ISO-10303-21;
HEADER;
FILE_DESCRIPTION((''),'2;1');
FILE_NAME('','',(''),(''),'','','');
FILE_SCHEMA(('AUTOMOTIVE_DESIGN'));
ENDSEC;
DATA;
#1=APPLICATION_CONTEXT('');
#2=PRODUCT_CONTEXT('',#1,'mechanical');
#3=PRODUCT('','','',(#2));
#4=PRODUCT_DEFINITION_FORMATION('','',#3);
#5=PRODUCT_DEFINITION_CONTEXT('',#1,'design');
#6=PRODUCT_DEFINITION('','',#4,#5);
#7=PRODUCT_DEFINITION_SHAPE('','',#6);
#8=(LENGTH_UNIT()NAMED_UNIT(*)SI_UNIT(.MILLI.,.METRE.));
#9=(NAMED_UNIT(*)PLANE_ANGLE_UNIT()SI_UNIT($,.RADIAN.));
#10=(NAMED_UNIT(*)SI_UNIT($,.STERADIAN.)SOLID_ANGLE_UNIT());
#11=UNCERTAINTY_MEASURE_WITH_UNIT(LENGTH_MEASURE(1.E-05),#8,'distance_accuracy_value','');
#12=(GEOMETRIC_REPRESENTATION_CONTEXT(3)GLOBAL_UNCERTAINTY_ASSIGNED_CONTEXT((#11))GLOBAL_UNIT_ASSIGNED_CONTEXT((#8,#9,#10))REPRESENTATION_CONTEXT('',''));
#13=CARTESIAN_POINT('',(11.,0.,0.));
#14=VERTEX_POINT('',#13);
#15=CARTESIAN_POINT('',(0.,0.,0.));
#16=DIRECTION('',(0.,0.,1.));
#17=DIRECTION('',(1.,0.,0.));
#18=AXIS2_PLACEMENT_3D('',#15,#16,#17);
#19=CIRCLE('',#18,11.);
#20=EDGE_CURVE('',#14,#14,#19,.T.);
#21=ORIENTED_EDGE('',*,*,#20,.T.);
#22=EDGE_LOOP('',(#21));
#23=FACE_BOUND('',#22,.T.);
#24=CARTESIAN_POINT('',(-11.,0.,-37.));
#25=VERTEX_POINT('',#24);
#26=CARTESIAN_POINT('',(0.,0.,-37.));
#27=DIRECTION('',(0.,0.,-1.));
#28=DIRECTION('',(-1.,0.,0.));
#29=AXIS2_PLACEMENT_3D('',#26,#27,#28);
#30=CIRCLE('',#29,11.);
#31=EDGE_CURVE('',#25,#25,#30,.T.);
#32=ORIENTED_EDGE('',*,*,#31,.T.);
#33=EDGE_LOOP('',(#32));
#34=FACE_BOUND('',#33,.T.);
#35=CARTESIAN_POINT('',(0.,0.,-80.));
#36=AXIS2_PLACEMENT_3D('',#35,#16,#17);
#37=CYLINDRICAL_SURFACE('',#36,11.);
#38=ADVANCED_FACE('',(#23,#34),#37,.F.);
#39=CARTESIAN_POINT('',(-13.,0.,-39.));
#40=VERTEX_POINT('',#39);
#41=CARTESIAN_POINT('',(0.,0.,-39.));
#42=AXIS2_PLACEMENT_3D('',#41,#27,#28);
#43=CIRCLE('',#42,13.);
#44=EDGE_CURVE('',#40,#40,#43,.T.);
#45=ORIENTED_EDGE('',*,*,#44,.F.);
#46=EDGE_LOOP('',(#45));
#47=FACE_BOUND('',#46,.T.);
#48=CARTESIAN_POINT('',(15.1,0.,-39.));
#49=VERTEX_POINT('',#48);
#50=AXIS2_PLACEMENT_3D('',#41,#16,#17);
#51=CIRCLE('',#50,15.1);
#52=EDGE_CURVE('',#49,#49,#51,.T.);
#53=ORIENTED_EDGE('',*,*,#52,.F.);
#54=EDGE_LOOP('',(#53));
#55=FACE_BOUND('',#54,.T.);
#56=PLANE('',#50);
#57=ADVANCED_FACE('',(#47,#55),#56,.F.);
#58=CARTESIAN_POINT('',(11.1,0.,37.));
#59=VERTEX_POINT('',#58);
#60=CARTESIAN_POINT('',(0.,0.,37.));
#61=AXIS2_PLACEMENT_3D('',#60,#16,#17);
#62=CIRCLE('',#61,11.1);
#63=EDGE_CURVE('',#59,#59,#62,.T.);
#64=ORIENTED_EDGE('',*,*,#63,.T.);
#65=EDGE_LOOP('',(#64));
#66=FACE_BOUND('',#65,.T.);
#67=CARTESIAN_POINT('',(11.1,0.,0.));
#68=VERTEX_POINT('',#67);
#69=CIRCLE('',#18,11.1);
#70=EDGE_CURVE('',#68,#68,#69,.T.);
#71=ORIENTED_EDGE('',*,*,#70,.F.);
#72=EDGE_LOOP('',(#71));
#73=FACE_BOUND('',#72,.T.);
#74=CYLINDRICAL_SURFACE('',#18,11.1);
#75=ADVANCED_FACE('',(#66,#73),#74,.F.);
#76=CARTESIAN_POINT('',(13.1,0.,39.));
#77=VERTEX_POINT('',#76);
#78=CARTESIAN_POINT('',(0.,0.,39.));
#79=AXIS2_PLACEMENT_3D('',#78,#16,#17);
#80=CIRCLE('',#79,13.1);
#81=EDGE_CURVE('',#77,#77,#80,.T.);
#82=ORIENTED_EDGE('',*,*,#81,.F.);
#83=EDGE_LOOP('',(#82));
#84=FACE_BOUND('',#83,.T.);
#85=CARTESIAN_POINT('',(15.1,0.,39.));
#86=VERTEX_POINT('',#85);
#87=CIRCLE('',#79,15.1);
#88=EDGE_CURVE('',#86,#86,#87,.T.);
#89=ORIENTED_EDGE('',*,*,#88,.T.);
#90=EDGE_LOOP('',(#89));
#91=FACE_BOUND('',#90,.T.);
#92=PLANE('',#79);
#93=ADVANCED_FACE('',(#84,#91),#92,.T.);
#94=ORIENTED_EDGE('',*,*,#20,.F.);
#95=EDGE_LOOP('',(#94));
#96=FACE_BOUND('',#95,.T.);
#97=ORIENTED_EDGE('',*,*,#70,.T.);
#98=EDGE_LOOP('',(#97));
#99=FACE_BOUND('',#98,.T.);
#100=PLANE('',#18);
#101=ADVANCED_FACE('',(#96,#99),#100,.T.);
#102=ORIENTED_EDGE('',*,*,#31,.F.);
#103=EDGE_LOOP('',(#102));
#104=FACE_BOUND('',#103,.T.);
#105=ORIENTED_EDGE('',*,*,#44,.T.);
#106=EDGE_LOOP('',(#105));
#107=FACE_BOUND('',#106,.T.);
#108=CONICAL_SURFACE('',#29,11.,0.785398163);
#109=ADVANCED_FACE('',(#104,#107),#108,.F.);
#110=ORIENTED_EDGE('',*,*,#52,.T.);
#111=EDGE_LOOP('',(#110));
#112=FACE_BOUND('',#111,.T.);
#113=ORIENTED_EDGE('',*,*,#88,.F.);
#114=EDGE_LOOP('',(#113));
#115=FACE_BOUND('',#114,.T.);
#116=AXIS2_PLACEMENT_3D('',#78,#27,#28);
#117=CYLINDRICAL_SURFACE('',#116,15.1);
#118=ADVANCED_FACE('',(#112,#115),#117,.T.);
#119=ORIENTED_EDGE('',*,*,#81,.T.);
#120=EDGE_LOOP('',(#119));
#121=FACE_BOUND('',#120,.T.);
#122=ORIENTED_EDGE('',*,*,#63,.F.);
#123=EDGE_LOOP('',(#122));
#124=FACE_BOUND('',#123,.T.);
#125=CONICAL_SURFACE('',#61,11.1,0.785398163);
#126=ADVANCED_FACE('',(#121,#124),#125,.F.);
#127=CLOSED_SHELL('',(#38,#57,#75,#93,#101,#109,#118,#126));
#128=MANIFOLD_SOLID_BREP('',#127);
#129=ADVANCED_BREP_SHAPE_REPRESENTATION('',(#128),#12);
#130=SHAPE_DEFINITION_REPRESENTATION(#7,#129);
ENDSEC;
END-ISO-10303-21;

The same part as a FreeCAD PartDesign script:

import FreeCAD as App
import Part
import Sketcher
from FreeCAD import Vector

doc = App.newDocument("Part")
body = doc.addObject("PartDesign::Body", "Body")

# Sketch on XY plane
sketch1 = body.newObject("Sketcher::SketchObject", "Sketch")
sketch1.AttachmentSupport = (doc.getObject("XY_Plane"), [""])
sketch1.MapMode = "FlatFace"
sketch1.addGeometry(Part.Circle(Vector(0, 0, 0), Vector(0, 0, 1), 15.1), False)
sketch1.addConstraint(Sketcher.Constraint("Coincident", 0, 3, -1, 1))
sketch1.addConstraint(Sketcher.Constraint("Diameter", 0, 30.2))
pad1 = body.newObject("PartDesign::Pad", "Pad")
pad1.Profile = sketch1
pad1.Length = 39

# Sketch on XY plane
sketch2 = body.newObject("Sketcher::SketchObject", "Sketch001")
sketch2.AttachmentSupport = (doc.getObject("XY_Plane"), [""])
sketch2.MapMode = "FlatFace"
sketch2.AttachmentOffset = App.Placement(Vector(0, 0, 39), App.Rotation())
sketch2.addGeometry(Part.Circle(Vector(0, 0, 0), Vector(0, 0, 1), 11.1), False)
sketch2.addConstraint(Sketcher.Constraint("Coincident", 0, 3, -1, 1))
sketch2.addConstraint(Sketcher.Constraint("Diameter", 0, 22.2))
pocket1 = body.newObject("PartDesign::Pocket", "Pocket")
pocket1.Profile = sketch2
pocket1.Type = "ThroughAll"

# Sketch on XZ plane
sketch3 = body.newObject("Sketcher::SketchObject", "Sketch002")
sketch3.AttachmentSupport = (doc.getObject("XZ_Plane"), [""])
sketch3.MapMode = "FlatFace"
sketch3.addGeometry(Part.LineSegment(Vector(-11.1, 39, 0), Vector(-11.1, 37, 0)), False)
sketch3.addGeometry(Part.LineSegment(Vector(-11.1, 37, 0), Vector(-13.1, 39, 0)), False)
sketch3.addGeometry(Part.LineSegment(Vector(-13.1, 39, 0), Vector(-11.1, 39, 0)), False)
sketch3.addConstraint(Sketcher.Constraint("Coincident", 0, 2, 1, 1))
sketch3.addConstraint(Sketcher.Constraint("Coincident", 1, 2, 2, 1))
sketch3.addConstraint(Sketcher.Constraint("Coincident", 2, 2, 0, 1))
sketch3.addConstraint(Sketcher.Constraint("Vertical", 0))
sketch3.addConstraint(Sketcher.Constraint("Horizontal", 2))
sketch3.addConstraint(Sketcher.Constraint("Equal", 2, 0))
sketch3.addConstraint(Sketcher.Constraint("DistanceX", 2, 1, 2, 2, 2.0))
sketch3.addConstraint(Sketcher.Constraint("DistanceY", -1, 1, 0, 2, 37.0))
sketch3.addConstraint(Sketcher.Constraint("DistanceX", 0, 2, -1, 1, 11.1))
groove = body.newObject("PartDesign::Groove", "Groove")
groove.Profile = sketch3
groove.ReferenceAxis = (sketch3, ["V_Axis"])
groove.Angle = 360

# Sketch on XY plane
sketch4 = body.newObject("Sketcher::SketchObject", "Sketch003")
sketch4.AttachmentSupport = (doc.getObject("XY_Plane"), [""])
sketch4.MapMode = "FlatFace"
sketch4.AttachmentOffset = App.Placement(Vector(0, 0, -39), App.Rotation())
sketch4.addGeometry(Part.Circle(Vector(0, 0, 0), Vector(0, 0, 1), 15.1), False)
sketch4.addConstraint(Sketcher.Constraint("Coincident", 0, 3, -1, 1))
sketch4.addConstraint(Sketcher.Constraint("Diameter", 0, 30.2))
pad2 = body.newObject("PartDesign::Pad", "Pad001")
pad2.Profile = sketch4
pad2.Length = 39

# Sketch on XY plane
sketch5 = body.newObject("Sketcher::SketchObject", "Sketch004")
sketch5.AttachmentSupport = (doc.getObject("XY_Plane"), [""])
sketch5.MapMode = "FlatFace"
sketch5.addGeometry(Part.Circle(Vector(0, 0, 0), Vector(0, 0, 1), 11), False)
sketch5.addConstraint(Sketcher.Constraint("Coincident", 0, 3, -1, 1))
sketch5.addConstraint(Sketcher.Constraint("Diameter", 0, 22.0))
pocket2 = body.newObject("PartDesign::Pocket", "Pocket001")
pocket2.Profile = sketch5
pocket2.Length = 80

# Sketch on XZ plane
sketch6 = body.newObject("Sketcher::SketchObject", "Sketch005")
sketch6.AttachmentSupport = (doc.getObject("XZ_Plane"), [""])
sketch6.MapMode = "FlatFace"
sketch6.addGeometry(Part.LineSegment(Vector(13, -39, 0), Vector(11, -39, 0)), False)
sketch6.addGeometry(Part.LineSegment(Vector(11, -39, 0), Vector(11, -37, 0)), False)
sketch6.addGeometry(Part.LineSegment(Vector(11, -37, 0), Vector(13, -39, 0)), False)
sketch6.addConstraint(Sketcher.Constraint("Coincident", 0, 2, 1, 1))
sketch6.addConstraint(Sketcher.Constraint("Coincident", 1, 2, 2, 1))
sketch6.addConstraint(Sketcher.Constraint("Coincident", 2, 2, 0, 1))
sketch6.addConstraint(Sketcher.Constraint("Horizontal", 0))
sketch6.addConstraint(Sketcher.Constraint("Vertical", 1))
sketch6.addConstraint(Sketcher.Constraint("Equal", 0, 1))
sketch6.addConstraint(Sketcher.Constraint("DistanceX", 0, 2, 0, 1, 2.0))
sketch6.addConstraint(Sketcher.Constraint("DistanceX", -1, 1, 0, 2, 11.0))
sketch6.addConstraint(Sketcher.Constraint("DistanceY", 0, 2, -1, 1, 39.0))
groove2 = body.newObject("PartDesign::Groove", "Groove001")
groove2.Profile = sketch6
groove2.ReferenceAxis = (sketch6, ["V_Axis"])
groove2.Angle = 360

doc.recompute()
